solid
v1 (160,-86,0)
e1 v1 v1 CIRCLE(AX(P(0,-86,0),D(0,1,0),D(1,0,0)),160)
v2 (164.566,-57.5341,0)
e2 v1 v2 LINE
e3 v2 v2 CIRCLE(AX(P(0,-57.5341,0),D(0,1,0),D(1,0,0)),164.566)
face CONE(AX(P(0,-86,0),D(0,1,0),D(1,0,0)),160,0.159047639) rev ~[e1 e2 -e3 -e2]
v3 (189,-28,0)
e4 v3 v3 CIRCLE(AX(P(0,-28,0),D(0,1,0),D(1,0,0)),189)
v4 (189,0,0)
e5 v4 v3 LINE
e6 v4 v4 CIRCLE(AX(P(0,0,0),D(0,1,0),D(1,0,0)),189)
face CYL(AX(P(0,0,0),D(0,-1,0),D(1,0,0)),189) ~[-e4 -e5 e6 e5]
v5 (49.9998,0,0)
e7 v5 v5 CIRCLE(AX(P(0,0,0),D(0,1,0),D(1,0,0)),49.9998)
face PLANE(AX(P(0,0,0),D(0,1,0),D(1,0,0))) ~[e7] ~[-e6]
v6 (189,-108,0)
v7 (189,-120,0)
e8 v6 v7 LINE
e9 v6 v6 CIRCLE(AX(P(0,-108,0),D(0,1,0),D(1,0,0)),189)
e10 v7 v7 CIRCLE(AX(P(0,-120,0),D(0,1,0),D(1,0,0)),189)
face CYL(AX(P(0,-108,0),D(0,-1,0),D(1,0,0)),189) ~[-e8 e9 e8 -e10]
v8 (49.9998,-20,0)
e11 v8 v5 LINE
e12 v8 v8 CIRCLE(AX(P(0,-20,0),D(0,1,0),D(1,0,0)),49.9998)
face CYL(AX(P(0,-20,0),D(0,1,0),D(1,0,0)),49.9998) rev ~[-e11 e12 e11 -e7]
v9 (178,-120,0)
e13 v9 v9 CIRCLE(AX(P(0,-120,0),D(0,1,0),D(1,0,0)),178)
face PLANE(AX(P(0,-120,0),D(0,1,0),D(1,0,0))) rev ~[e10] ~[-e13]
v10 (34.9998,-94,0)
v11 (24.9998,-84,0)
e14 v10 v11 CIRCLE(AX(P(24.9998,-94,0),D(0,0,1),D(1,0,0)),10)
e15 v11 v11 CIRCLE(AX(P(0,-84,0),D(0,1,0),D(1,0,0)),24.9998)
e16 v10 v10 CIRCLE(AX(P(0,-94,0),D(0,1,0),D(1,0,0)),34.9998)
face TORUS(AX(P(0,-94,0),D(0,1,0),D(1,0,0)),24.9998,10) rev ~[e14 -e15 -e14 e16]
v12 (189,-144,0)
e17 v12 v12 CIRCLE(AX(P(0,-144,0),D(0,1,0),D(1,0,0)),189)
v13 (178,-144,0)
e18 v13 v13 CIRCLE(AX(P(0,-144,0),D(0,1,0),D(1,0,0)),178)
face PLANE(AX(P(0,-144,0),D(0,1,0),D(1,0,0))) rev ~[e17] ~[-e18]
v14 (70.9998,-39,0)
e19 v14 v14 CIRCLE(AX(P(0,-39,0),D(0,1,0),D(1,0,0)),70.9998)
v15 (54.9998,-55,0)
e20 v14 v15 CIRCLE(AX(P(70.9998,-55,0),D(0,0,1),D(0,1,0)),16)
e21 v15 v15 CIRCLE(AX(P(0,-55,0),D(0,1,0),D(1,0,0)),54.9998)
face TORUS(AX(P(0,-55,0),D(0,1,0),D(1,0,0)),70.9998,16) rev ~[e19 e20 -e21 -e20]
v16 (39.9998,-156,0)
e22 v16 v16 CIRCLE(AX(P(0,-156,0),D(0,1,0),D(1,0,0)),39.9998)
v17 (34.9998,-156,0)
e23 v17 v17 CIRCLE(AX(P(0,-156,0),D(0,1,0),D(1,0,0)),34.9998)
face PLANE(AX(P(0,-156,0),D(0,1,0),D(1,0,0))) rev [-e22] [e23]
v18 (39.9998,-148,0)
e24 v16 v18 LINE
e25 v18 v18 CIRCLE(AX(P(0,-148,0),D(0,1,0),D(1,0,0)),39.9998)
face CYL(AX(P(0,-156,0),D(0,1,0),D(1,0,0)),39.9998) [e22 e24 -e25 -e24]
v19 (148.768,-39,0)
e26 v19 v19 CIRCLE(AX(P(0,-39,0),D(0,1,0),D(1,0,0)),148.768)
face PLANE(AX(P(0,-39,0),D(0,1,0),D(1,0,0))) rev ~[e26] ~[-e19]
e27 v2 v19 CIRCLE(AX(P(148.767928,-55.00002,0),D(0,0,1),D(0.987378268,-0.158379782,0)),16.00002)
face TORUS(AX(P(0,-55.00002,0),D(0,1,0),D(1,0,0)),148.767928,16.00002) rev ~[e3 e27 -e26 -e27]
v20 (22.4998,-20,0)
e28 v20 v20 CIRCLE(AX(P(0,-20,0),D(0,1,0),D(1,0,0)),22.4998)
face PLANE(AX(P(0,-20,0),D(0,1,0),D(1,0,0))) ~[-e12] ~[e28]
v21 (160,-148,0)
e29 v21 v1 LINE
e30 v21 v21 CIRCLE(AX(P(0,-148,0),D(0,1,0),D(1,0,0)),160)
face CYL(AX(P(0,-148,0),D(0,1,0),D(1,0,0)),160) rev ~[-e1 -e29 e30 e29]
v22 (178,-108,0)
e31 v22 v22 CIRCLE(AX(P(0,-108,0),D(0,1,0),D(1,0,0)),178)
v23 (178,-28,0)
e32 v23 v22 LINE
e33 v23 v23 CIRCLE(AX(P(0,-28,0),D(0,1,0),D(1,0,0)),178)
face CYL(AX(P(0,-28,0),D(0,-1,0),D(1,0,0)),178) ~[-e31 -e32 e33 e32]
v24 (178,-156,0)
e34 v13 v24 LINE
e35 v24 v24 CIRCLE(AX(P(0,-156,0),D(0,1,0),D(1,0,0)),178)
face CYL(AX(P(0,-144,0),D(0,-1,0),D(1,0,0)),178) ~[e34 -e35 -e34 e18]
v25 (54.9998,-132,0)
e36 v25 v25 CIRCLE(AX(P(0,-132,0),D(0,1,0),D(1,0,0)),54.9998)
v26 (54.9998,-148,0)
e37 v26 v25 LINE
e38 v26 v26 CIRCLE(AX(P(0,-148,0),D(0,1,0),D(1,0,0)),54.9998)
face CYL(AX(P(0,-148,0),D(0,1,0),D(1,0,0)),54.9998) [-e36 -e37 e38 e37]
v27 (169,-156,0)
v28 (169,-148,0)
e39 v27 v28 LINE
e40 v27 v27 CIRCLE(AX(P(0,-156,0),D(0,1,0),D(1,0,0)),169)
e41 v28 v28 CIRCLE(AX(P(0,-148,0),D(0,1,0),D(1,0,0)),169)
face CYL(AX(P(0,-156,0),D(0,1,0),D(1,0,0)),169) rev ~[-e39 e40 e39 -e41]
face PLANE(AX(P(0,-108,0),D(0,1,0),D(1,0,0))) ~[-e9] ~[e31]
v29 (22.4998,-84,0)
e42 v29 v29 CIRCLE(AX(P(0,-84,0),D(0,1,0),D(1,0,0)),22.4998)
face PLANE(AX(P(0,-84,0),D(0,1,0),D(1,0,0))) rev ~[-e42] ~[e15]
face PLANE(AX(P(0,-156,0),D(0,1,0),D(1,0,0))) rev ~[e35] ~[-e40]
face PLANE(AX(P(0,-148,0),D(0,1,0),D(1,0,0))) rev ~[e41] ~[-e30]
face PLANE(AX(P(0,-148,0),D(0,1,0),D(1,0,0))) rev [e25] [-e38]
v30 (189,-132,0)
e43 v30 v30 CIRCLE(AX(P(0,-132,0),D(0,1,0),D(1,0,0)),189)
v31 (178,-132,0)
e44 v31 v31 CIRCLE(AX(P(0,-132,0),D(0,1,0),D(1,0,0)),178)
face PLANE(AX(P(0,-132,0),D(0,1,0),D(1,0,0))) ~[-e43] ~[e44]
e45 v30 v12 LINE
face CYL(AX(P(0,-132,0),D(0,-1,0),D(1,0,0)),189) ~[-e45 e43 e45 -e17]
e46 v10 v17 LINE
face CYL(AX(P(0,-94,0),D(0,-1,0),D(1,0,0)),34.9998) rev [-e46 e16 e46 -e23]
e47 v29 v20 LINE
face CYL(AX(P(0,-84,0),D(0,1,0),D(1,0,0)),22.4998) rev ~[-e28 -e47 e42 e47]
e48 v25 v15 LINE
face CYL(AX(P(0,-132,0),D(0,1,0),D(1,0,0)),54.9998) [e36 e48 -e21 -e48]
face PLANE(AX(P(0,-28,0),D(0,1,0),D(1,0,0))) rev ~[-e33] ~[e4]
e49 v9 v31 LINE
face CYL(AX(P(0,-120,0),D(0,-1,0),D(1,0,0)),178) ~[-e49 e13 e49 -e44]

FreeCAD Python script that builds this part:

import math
import FreeCAD as App
import Part
import Sketcher

V = App.Vector
Q = App.Units.Quantity

doc = App.newDocument("Part")
body = doc.addObject("PartDesign::Body", "Body")

sketch1 = body.newObject("Sketcher::SketchObject", "Sketch")
sketch1.AttachmentSupport = (doc.getObject("XY_Plane"), [""])
sketch1.MapMode = "FlatFace"
sketch1.addGeometry(Part.LineSegment(V(189, 0, 0), V(50, 0, 0)), False)
sketch1.addGeometry(Part.LineSegment(V(50, 0, 0), V(50, -20, 0)), False)
sketch1.addGeometry(Part.LineSegment(V(50, -20, 0), V(22.5, -20, 0)), False)
sketch1.addGeometry(Part.LineSegment(V(22.5, -20, 0), V(22.5, -84, 0)), False)
sketch1.addGeometry(Part.LineSegment(V(22.5, -84, 0), V(25, -84, 0)), False)
sketch1.addGeometry(Part.ArcOfCircle(Part.Circle(V(25, -94, 0), V(0, 0, 1), 10), math.radians(0), math.radians(90)), False)
sketch1.addGeometry(Part.LineSegment(V(35, -94, 0), V(35, -156, 0)), False)
sketch1.addGeometry(Part.LineSegment(V(35, -156, 0), V(40, -156, 0)), False)
sketch1.addGeometry(Part.LineSegment(V(40, -156, 0), V(40, -148, 0)), False)
sketch1.addGeometry(Part.LineSegment(V(40, -148, 0), V(55, -148, 0)), False)
sketch1.addGeometry(Part.LineSegment(V(55, -148, 0), V(55, -55, 0)), False)
sketch1.addGeometry(Part.ArcOfCircle(Part.Circle(V(71, -55, 0), V(0, 0, 1), 16), math.radians(90), math.radians(180)), False)
sketch1.addGeometry(Part.LineSegment(V(71, -39, 0), V(148.8, -39, 0)), False)
sketch1.addGeometry(Part.ArcOfCircle(Part.Circle(V(148.8, -55, 0), V(0, 0, 1), 16), math.radians(-9), math.radians(90)), False)
sketch1.addGeometry(Part.LineSegment(V(164.6, -57.5, 0), V(160, -86, 0)), False)
sketch1.addGeometry(Part.LineSegment(V(160, -86, 0), V(160, -148, 0)), False)
sketch1.addGeometry(Part.LineSegment(V(160, -148, 0), V(169, -148, 0)), False)
sketch1.addGeometry(Part.LineSegment(V(169, -148, 0), V(169, -156, 0)), False)
sketch1.addGeometry(Part.LineSegment(V(169, -156, 0), V(178, -156, 0)), False)
sketch1.addGeometry(Part.LineSegment(V(178, -156, 0), V(178, -144, 0)), False)
sketch1.addGeometry(Part.LineSegment(V(178, -144, 0), V(189, -144, 0)), False)
sketch1.addGeometry(Part.LineSegment(V(189, -144, 0), V(189, -132, 0)), False)
sketch1.addGeometry(Part.LineSegment(V(189, -132, 0), V(178, -132, 0)), False)
sketch1.addGeometry(Part.LineSegment(V(178, -132, 0), V(178, -120, 0)), False)
sketch1.addGeometry(Part.LineSegment(V(178, -120, 0), V(189, -120, 0)), False)
sketch1.addGeometry(Part.LineSegment(V(189, -120, 0), V(189, -108, 0)), False)
sketch1.addGeometry(Part.LineSegment(V(189, -108, 0), V(178, -108, 0)), False)
sketch1.addGeometry(Part.LineSegment(V(178, -108, 0), V(178, -28, 0)), False)
sketch1.addGeometry(Part.LineSegment(V(178, -28, 0), V(189, -28, 0)), False)
sketch1.addGeometry(Part.LineSegment(V(189, -28, 0), V(189, 0, 0)), False)
sketch1.addConstraint(Sketcher.Constraint("Coincident", 0, 2, 1, 1))
sketch1.addConstraint(Sketcher.Constraint("Coincident", 1, 2, 2, 1))
sketch1.addConstraint(Sketcher.Constraint("Coincident", 2, 2, 3, 1))
sketch1.addConstraint(Sketcher.Constraint("Coincident", 3, 2, 4, 1))
sketch1.addConstraint(Sketcher.Constraint("Tangent", 4, 2, 5, 2))
sketch1.addConstraint(Sketcher.Constraint("Tangent", 5, 1, 6, 1))
sketch1.addConstraint(Sketcher.Constraint("Coincident", 6, 2, 7, 1))
sketch1.addConstraint(Sketcher.Constraint("Coincident", 7, 2, 8, 1))
sketch1.addConstraint(Sketcher.Constraint("Coincident", 8, 2, 9, 1))
sketch1.addConstraint(Sketcher.Constraint("Coincident", 9, 2, 10, 1))
sketch1.addConstraint(Sketcher.Constraint("Tangent", 10, 2, 11, 2))
sketch1.addConstraint(Sketcher.Constraint("Tangent", 11, 1, 12, 1))
sketch1.addConstraint(Sketcher.Constraint("Tangent", 12, 2, 13, 2))
sketch1.addConstraint(Sketcher.Constraint("Tangent", 13, 1, 14, 1))
sketch1.addConstraint(Sketcher.Constraint("Coincident", 14, 2, 15, 1))
sketch1.addConstraint(Sketcher.Constraint("Coincident", 15, 2, 16, 1))
sketch1.addConstraint(Sketcher.Constraint("Coincident", 16, 2, 17, 1))
sketch1.addConstraint(Sketcher.Constraint("Coincident", 17, 2, 18, 1))
sketch1.addConstraint(Sketcher.Constraint("Coincident", 18, 2, 19, 1))
sketch1.addConstraint(Sketcher.Constraint("Coincident", 19, 2, 20, 1))
sketch1.addConstraint(Sketcher.Constraint("Coincident", 20, 2, 21, 1))
sketch1.addConstraint(Sketcher.Constraint("Coincident", 21, 2, 22, 1))
sketch1.addConstraint(Sketcher.Constraint("Coincident", 22, 2, 23, 1))
sketch1.addConstraint(Sketcher.Constraint("Coincident", 23, 2, 24, 1))
sketch1.addConstraint(Sketcher.Constraint("Coincident", 24, 2, 25, 1))
sketch1.addConstraint(Sketcher.Constraint("Coincident", 25, 2, 26, 1))
sketch1.addConstraint(Sketcher.Constraint("Coincident", 26, 2, 27, 1))
sketch1.addConstraint(Sketcher.Constraint("Coincident", 27, 2, 28, 1))
sketch1.addConstraint(Sketcher.Constraint("Coincident", 28, 2, 29, 1))
sketch1.addConstraint(Sketcher.Constraint("Coincident", 29, 2, 0, 1))
sketch1.addConstraint(Sketcher.Constraint("Horizontal", 0))
sketch1.addConstraint(Sketcher.Constraint("Vertical", 1))
sketch1.addConstraint(Sketcher.Constraint("Horizontal", 2))
sketch1.addConstraint(Sketcher.Constraint("Vertical", 3))
sketch1.addConstraint(Sketcher.Constraint("Horizontal", 4))
sketch1.addConstraint(Sketcher.Constraint("Vertical", 6))
sketch1.addConstraint(Sketcher.Constraint("Horizontal", 7))
sketch1.addConstraint(Sketcher.Constraint("Vertical", 8))
sketch1.addConstraint(Sketcher.Constraint("Horizontal", 9))
sketch1.addConstraint(Sketcher.Constraint("Vertical", 10))
sketch1.addConstraint(Sketcher.Constraint("Horizontal", 12))
sketch1.addConstraint(Sketcher.Constraint("Vertical", 15))
sketch1.addConstraint(Sketcher.Constraint("Horizontal", 16))
sketch1.addConstraint(Sketcher.Constraint("Vertical", 17))
sketch1.addConstraint(Sketcher.Constraint("Horizontal", 18))
sketch1.addConstraint(Sketcher.Constraint("Vertical", 19))
sketch1.addConstraint(Sketcher.Constraint("Horizontal", 20))
sketch1.addConstraint(Sketcher.Constraint("Vertical", 21))
sketch1.addConstraint(Sketcher.Constraint("Horizontal", 22))
sketch1.addConstraint(Sketcher.Constraint("Vertical", 23))
sketch1.addConstraint(Sketcher.Constraint("Horizontal", 24))
sketch1.addConstraint(Sketcher.Constraint("Vertical", 25))
sketch1.addConstraint(Sketcher.Constraint("Horizontal", 26))
sketch1.addConstraint(Sketcher.Constraint("Vertical", 27))
sketch1.addConstraint(Sketcher.Constraint("Horizontal", 28))
sketch1.addConstraint(Sketcher.Constraint("Vertical", 29))
sketch1.addConstraint(Sketcher.Constraint("Equal", 11, 13))
sketch1.addConstraint(Sketcher.Constraint("PointOnObject", 0, 2, -1))
sketch1.addConstraint(Sketcher.Constraint("Horizontal", 9, 2, 15, 2))
sketch1.addConstraint(Sketcher.Constraint("Horizontal", 7, 2, 17, 2))
sketch1.addConstraint(Sketcher.Constraint("Vertical", 19, 2, 22, 2))
sketch1.addConstraint(Sketcher.Constraint("Vertical", 21, 2, 24, 2))
sketch1.addConstraint(Sketcher.Constraint("Vertical", 23, 2, 26, 2))
sketch1.addConstraint(Sketcher.Constraint("Vertical", 25, 2, 28, 2))
sketch1.addConstraint(Sketcher.Constraint("Equal", 16, 18))
sketch1.addConstraint(Sketcher.Constraint("Equal", 6, 15))
sketch1.addConstraint(Sketcher.Constraint("Equal", 19, 21))
sketch1.addConstraint(Sketcher.Constraint("Equal", 21, 23))
sketch1.addConstraint(Sketcher.Constraint("Equal", 23, 25))
sketch1.addConstraint(Sketcher.Constraint("Radius", 5, Q("10 mm")))
sketch1.addConstraint(Sketcher.Constraint("Radius", 11, Q("16 mm")))
sketch1.addConstraint(Sketcher.Constraint("DistanceX", 7, 1, 7, 2, Q("5 mm")))
sketch1.addConstraint(Sketcher.Constraint("DistanceX", 9, 1, 9, 2, Q("15 mm")))
sketch1.addConstraint(Sketcher.Constraint("DistanceX", 16, 1, 16, 2, Q("9 mm")))
sketch1.addConstraint(Sketcher.Constraint("DistanceX", 20, 1, 20, 2, Q("11 mm")))
sketch1.addConstraint(Sketcher.Constraint("DistanceY", 1, 2, 1, 1, Q("20 mm")))
sketch1.addConstraint(Sketcher.Constraint("DistanceY", 3, 2, 3, 1, Q("64 mm")))
sketch1.addConstraint(Sketcher.Constraint("DistanceY", 8, 1, 8, 2, Q("8 mm")))
sketch1.addConstraint(Sketcher.Constraint("DistanceY", 19, 1, 19, 2, Q("12 mm")))
sketch1.addConstraint(Sketcher.Constraint("DistanceY", 27, 1, 27, 2, Q("80 mm")))
sketch1.addConstraint(Sketcher.Constraint("DistanceY", 29, 1, 29, 2, Q("28 mm")))
sketch1.addConstraint(Sketcher.Constraint("DistanceX", 4, 1, 4, 2, Q("2.5 mm")))
sketch1.addConstraint(Sketcher.Constraint("DistanceX", -1, 1, 20, 2, Q("189 mm")))
sketch1.addConstraint(Sketcher.Constraint("DistanceX", 1, 2, 10, 2, Q("5 mm")))
sketch1.addConstraint(Sketcher.Constraint("DistanceY", 12, 2, 27, 2, Q("11 mm")))
sketch1.addConstraint(Sketcher.Constraint("DistanceX", 0, 2, 0, 1, Q("139.0002 mm")))
sketch1.addConstraint(Sketcher.Constraint("DistanceX", 12, 1, 12, 2, Q("77.7682 mm")))
revolution = body.newObject("PartDesign::Revolution", "Revolution")
revolution.Profile = sketch1
revolution.ReferenceAxis = (sketch1, ["V_Axis"])
revolution.Angle = 360

doc.recompute()
